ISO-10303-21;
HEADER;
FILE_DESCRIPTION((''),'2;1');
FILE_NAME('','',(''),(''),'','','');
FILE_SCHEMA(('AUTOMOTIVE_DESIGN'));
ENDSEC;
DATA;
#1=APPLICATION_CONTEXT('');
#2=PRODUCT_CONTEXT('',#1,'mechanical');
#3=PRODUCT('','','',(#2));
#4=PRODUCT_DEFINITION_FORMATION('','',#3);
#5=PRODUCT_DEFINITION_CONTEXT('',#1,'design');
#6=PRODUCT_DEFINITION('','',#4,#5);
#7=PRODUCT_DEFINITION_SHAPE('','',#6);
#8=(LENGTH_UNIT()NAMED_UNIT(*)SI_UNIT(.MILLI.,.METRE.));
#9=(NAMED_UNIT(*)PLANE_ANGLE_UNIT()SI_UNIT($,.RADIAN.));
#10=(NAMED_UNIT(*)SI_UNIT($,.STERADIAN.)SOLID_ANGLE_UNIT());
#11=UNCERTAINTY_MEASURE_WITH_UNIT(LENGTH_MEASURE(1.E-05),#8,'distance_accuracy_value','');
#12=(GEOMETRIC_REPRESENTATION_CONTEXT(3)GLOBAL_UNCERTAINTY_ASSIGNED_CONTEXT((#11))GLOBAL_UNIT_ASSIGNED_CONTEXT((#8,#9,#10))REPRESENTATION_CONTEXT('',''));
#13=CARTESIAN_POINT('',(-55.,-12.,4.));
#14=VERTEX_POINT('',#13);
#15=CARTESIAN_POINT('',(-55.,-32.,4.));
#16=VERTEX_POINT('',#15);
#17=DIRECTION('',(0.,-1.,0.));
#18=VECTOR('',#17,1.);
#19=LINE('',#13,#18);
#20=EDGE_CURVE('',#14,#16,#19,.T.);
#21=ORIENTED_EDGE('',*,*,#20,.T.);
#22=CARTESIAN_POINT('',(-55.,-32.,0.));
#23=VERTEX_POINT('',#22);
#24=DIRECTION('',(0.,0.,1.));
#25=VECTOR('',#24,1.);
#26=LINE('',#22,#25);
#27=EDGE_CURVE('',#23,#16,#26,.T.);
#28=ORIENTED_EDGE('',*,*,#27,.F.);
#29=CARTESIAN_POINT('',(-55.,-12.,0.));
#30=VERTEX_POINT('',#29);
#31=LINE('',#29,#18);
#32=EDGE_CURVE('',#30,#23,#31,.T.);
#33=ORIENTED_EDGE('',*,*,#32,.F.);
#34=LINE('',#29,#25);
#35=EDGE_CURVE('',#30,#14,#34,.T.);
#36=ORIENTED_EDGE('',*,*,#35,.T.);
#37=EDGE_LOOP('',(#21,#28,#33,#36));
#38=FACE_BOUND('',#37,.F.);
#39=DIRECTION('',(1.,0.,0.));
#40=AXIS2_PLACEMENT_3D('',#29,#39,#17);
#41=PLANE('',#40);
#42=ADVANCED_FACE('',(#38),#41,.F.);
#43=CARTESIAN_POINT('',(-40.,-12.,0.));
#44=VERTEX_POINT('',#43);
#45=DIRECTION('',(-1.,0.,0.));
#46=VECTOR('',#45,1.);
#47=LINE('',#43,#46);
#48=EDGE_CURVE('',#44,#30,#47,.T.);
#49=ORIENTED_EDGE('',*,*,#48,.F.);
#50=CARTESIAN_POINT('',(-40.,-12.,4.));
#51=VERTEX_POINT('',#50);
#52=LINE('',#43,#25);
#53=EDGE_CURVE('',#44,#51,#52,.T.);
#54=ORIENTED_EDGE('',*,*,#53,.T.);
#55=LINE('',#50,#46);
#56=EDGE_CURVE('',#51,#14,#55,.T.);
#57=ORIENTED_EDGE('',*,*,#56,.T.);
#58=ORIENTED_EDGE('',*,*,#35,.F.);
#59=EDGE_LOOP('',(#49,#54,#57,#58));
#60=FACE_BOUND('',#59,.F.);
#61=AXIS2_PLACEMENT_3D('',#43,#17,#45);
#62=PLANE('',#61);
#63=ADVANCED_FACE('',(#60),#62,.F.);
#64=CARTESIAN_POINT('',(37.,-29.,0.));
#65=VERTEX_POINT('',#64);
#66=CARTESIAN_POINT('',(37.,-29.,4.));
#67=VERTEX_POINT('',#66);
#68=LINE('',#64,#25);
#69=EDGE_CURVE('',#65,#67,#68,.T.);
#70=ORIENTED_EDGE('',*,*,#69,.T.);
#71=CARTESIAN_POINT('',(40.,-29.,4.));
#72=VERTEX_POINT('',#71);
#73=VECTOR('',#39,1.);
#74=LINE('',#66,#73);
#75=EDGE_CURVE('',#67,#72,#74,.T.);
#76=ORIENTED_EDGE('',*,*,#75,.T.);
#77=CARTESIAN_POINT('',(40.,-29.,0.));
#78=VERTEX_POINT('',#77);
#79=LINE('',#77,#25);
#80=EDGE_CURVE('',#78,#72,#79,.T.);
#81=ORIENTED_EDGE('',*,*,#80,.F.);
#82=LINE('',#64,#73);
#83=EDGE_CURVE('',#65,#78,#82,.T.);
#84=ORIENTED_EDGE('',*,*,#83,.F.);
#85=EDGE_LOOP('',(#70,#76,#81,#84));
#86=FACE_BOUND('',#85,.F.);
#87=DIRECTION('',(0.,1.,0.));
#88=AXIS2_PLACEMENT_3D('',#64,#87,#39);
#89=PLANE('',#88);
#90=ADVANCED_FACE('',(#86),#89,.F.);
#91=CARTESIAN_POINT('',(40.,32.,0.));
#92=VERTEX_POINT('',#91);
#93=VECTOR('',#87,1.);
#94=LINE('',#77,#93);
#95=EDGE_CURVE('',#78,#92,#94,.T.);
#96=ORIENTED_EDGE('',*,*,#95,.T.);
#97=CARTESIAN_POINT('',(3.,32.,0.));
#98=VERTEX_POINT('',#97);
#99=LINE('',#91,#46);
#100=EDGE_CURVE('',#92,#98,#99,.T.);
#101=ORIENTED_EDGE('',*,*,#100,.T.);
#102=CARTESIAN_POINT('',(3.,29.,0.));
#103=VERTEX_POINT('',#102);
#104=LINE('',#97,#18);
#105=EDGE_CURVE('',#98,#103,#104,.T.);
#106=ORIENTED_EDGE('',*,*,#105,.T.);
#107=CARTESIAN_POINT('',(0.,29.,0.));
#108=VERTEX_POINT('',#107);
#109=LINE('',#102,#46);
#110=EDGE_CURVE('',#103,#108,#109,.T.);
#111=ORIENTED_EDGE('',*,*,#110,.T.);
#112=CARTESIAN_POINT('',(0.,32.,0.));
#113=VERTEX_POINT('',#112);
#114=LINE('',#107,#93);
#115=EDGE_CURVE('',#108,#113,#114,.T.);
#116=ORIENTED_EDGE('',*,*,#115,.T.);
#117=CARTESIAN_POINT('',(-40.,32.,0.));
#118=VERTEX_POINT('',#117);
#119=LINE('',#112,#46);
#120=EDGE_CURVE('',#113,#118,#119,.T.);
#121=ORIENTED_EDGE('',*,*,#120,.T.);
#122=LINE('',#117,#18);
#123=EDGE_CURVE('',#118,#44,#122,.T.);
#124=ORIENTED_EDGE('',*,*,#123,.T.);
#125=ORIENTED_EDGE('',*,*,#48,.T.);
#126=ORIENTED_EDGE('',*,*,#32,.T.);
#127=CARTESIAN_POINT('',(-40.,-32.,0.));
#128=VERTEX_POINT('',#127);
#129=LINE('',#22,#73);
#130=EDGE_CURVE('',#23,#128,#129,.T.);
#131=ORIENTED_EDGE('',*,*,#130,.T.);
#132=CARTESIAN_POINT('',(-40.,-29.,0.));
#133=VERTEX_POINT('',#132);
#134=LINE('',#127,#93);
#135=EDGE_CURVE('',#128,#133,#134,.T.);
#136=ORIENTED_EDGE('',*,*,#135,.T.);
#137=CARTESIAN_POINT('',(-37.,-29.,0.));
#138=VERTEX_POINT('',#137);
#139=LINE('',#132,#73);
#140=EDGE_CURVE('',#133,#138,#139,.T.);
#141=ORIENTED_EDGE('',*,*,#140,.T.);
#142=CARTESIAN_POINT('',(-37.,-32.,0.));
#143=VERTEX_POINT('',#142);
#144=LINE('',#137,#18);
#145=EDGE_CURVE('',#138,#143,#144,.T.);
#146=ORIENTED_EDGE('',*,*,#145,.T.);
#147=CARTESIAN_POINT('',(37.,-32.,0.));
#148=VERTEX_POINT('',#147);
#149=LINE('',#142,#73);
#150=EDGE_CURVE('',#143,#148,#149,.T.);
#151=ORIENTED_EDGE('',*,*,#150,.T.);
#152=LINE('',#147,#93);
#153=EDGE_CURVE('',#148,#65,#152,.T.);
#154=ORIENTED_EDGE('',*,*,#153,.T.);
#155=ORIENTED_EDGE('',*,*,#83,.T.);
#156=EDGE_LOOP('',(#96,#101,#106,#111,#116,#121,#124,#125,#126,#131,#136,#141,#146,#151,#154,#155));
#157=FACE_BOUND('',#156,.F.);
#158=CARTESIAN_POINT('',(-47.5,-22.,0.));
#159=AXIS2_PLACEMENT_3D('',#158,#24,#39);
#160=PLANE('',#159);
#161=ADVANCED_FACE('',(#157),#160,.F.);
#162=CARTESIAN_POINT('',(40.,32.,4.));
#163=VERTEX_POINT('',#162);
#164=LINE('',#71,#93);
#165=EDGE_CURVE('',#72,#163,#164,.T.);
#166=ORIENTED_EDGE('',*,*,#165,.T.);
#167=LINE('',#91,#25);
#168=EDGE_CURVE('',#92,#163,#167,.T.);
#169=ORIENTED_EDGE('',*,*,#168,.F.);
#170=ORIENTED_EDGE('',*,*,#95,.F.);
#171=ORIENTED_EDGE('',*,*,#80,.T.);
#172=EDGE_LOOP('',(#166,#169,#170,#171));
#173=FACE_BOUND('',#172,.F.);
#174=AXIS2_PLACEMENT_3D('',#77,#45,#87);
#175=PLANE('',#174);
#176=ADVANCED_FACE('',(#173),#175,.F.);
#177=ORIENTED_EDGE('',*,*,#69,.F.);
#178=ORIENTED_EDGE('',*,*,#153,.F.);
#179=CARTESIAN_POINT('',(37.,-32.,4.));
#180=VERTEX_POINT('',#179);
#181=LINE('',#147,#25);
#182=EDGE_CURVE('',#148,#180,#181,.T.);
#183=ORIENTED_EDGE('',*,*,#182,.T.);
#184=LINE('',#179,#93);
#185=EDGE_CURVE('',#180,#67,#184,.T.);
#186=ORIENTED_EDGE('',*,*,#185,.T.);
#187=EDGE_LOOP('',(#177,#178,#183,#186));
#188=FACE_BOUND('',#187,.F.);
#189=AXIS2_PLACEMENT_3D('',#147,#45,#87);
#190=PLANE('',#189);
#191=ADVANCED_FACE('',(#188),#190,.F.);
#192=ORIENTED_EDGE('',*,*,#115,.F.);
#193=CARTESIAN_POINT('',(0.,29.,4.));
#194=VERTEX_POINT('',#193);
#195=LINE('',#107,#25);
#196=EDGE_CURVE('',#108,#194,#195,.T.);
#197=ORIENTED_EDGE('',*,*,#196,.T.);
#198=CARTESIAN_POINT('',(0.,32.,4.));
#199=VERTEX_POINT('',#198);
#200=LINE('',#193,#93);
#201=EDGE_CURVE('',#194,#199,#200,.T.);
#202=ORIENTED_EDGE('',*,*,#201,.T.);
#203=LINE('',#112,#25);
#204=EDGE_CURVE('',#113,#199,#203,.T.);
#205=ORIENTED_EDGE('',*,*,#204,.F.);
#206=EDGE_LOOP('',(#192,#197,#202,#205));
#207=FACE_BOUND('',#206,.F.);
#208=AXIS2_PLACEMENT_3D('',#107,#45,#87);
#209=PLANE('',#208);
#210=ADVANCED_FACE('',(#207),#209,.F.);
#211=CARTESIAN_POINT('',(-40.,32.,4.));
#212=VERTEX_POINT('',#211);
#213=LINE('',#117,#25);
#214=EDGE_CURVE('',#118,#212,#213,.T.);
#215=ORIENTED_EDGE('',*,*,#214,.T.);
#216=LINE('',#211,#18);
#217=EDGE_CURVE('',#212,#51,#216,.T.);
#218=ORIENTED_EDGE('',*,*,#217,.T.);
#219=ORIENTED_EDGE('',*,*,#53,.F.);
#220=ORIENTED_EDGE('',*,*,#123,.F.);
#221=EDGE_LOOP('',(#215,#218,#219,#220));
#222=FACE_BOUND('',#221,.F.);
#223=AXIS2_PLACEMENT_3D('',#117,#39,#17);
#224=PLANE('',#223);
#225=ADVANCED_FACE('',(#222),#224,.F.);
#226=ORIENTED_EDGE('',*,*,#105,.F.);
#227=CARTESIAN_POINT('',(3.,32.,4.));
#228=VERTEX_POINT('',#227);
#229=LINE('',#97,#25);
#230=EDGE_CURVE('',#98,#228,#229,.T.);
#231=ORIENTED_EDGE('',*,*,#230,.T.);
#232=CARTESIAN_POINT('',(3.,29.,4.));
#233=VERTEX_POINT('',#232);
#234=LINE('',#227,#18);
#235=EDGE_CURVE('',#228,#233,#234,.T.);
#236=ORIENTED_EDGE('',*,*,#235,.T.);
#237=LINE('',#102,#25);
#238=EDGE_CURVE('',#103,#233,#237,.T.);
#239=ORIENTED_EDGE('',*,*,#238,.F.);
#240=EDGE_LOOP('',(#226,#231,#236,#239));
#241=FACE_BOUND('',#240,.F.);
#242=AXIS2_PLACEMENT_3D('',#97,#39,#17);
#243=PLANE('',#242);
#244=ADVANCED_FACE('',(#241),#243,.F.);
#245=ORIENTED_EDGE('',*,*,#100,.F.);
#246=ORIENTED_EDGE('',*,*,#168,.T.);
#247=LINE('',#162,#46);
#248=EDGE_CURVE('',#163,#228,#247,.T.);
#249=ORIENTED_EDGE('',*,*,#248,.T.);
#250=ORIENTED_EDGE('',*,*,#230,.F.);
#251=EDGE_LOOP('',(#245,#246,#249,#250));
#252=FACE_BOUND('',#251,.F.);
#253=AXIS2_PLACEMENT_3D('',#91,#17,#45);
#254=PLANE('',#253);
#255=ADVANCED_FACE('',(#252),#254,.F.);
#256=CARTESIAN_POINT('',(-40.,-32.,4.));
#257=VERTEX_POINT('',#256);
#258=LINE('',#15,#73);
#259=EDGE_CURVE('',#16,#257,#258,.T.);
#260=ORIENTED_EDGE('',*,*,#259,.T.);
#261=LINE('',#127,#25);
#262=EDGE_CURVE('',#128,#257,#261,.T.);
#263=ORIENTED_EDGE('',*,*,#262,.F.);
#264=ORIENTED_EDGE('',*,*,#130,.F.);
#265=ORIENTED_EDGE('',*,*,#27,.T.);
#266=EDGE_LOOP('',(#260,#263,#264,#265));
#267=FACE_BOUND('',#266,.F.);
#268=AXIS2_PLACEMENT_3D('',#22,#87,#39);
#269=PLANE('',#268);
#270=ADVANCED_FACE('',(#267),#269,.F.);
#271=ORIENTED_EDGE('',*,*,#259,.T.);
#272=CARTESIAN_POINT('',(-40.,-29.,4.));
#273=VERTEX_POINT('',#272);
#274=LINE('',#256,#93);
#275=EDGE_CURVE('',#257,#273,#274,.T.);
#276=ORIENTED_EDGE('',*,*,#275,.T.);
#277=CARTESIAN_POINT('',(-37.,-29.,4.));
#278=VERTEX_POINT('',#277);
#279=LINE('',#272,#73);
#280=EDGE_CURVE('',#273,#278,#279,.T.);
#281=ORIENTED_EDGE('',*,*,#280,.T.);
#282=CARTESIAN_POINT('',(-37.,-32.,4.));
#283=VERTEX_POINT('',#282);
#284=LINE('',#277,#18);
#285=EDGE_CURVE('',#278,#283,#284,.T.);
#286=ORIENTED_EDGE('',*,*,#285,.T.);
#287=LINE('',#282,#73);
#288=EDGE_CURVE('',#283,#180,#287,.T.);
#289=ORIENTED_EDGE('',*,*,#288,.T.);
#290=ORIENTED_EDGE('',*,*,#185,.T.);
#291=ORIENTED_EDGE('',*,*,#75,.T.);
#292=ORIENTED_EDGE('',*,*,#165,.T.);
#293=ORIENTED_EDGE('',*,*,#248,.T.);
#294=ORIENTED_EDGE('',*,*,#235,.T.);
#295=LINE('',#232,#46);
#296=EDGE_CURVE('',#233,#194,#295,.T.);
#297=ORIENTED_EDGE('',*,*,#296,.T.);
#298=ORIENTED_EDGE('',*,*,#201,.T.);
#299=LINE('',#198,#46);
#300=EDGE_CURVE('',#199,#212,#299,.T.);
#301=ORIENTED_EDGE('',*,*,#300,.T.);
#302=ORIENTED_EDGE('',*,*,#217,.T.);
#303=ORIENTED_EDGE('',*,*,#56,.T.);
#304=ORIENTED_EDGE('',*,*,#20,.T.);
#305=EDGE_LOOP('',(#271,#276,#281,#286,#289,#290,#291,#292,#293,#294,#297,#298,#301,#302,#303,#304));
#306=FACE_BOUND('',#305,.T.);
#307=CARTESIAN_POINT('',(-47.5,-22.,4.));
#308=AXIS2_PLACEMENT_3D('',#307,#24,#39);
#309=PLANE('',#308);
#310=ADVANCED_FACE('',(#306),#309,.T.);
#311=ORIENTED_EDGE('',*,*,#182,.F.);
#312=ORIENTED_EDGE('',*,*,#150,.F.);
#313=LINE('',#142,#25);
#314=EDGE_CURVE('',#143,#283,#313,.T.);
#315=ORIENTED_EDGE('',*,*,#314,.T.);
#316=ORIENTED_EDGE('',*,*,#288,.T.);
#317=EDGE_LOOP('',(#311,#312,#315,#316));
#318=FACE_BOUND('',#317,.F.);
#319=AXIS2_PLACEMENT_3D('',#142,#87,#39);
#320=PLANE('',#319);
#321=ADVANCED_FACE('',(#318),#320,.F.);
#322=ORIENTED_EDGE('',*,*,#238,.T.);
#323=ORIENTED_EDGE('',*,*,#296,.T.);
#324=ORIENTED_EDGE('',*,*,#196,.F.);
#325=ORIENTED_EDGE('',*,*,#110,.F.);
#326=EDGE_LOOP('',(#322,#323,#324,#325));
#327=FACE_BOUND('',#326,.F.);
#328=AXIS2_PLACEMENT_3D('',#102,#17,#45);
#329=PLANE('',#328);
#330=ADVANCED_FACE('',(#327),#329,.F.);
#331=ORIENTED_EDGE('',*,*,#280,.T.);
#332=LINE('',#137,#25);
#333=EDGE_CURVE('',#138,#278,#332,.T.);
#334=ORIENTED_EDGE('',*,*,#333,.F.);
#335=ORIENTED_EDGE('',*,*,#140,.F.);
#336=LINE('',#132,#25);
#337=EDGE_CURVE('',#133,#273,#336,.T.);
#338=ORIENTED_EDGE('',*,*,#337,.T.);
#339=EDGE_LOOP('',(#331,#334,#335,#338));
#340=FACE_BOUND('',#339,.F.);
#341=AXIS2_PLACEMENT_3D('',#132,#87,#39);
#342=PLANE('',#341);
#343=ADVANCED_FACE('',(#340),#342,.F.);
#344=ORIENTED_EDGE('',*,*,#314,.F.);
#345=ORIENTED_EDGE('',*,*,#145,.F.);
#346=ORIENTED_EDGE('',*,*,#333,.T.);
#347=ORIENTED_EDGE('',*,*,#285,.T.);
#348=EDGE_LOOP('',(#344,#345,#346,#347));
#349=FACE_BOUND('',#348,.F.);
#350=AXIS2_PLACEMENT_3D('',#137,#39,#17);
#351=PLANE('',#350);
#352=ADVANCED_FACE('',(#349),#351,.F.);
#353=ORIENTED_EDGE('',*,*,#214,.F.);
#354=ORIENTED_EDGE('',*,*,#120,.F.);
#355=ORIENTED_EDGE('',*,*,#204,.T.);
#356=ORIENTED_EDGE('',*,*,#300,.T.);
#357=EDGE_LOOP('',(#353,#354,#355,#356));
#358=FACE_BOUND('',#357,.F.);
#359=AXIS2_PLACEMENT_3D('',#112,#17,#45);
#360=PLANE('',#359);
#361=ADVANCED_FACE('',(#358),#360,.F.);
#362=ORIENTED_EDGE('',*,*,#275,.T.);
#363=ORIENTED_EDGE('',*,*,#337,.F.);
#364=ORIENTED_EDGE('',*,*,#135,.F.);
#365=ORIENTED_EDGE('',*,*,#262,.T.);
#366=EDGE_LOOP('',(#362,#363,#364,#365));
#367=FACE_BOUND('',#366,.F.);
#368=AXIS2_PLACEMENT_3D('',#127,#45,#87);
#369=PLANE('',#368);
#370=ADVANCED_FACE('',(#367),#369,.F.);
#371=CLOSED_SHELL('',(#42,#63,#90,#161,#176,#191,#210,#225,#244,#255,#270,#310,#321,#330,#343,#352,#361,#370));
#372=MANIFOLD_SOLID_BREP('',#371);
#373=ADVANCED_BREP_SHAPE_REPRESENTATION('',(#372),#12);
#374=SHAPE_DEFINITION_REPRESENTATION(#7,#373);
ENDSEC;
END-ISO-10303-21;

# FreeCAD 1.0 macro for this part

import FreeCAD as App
import Part
import Sketcher


def add_polygon(sketch, points):
    """Adds a closed chain of lines whose ends are joined by coincident constraints."""
    first, n = sketch.GeometryCount, len(points)
    for a, b in zip(points, points[1:] + points[:1]):
        sketch.addGeometry(Part.LineSegment(App.Vector(*a, 0), App.Vector(*b, 0)), False)
    for i in range(n):
        sketch.addConstraint(Sketcher.Constraint("Coincident", first + i, 2, first + (i + 1) % n, 1))

doc = App.newDocument("Part")
body = doc.addObject("PartDesign::Body", "Body")

# Sketch on XY plane
sketch1 = doc.addObject("Sketcher::SketchObject", "Sketch")
body.addObject(sketch1)
sketch1.AttachmentSupport = (doc.XY_Plane, [""])
sketch1.MapMode = "FlatFace"
add_polygon(sketch1, [(-55, -32), (-40, -32), (-40, -29), (-37, -29), (-37, -32), (37, -32), (37, -29), (40, -29), (40, 32), (3, 32), (3, 29), (0, 29), (0, 32), (-40, 32), (-40, -12), (-55, -12)])  # lines 0-15
sketch1.addConstraint([
    Sketcher.Constraint("Horizontal", 0),
    Sketcher.Constraint("Vertical", 1),
    Sketcher.Constraint("Horizontal", 2),
    Sketcher.Constraint("Vertical", 3),
    Sketcher.Constraint("Horizontal", 4),
    Sketcher.Constraint("Vertical", 5),
    Sketcher.Constraint("Horizontal", 6),
    Sketcher.Constraint("Vertical", 7),
    Sketcher.Constraint("Horizontal", 8),
    Sketcher.Constraint("Vertical", 9),
    Sketcher.Constraint("Horizontal", 10),
    Sketcher.Constraint("Vertical", 11),
    Sketcher.Constraint("Horizontal", 12),
    Sketcher.Constraint("Vertical", 13),
    Sketcher.Constraint("Horizontal", 14),
    Sketcher.Constraint("Vertical", 15),
    Sketcher.Constraint("Symmetric", 0, 2, 7, 2, -1, 1),
    Sketcher.Constraint("Symmetric", 2, 2, 5, 2, -2),
    Sketcher.Constraint("Symmetric", 7, 2, 12, 2, -2),
    Sketcher.Constraint("PointOnObject", 10, 2, -2),
    Sketcher.Constraint("Horizontal", 0, 2, 3, 2),
    Sketcher.Constraint("Equal", 6, 10),
    Sketcher.Constraint("Equal", 10, 1),
    Sketcher.Constraint("Equal", 5, 9),
    Sketcher.Constraint("DistanceX", 0, 1, 0, 2, 15.0),
    Sketcher.Constraint("DistanceX", 2, 1, 2, 2, 3.0),
    Sketcher.Constraint("DistanceX", 4, 1, 4, 2, 74.0),
    Sketcher.Constraint("DistanceY", 7, 1, 7, 2, 61.0),
    Sketcher.Constraint("DistanceY", 13, 2, 13, 1, 44.0),
])
pad1 = doc.addObject("PartDesign::Pad", "Pad")
body.addObject(pad1)
pad1.Profile = sketch1
pad1.Length = 4

doc.recompute()
